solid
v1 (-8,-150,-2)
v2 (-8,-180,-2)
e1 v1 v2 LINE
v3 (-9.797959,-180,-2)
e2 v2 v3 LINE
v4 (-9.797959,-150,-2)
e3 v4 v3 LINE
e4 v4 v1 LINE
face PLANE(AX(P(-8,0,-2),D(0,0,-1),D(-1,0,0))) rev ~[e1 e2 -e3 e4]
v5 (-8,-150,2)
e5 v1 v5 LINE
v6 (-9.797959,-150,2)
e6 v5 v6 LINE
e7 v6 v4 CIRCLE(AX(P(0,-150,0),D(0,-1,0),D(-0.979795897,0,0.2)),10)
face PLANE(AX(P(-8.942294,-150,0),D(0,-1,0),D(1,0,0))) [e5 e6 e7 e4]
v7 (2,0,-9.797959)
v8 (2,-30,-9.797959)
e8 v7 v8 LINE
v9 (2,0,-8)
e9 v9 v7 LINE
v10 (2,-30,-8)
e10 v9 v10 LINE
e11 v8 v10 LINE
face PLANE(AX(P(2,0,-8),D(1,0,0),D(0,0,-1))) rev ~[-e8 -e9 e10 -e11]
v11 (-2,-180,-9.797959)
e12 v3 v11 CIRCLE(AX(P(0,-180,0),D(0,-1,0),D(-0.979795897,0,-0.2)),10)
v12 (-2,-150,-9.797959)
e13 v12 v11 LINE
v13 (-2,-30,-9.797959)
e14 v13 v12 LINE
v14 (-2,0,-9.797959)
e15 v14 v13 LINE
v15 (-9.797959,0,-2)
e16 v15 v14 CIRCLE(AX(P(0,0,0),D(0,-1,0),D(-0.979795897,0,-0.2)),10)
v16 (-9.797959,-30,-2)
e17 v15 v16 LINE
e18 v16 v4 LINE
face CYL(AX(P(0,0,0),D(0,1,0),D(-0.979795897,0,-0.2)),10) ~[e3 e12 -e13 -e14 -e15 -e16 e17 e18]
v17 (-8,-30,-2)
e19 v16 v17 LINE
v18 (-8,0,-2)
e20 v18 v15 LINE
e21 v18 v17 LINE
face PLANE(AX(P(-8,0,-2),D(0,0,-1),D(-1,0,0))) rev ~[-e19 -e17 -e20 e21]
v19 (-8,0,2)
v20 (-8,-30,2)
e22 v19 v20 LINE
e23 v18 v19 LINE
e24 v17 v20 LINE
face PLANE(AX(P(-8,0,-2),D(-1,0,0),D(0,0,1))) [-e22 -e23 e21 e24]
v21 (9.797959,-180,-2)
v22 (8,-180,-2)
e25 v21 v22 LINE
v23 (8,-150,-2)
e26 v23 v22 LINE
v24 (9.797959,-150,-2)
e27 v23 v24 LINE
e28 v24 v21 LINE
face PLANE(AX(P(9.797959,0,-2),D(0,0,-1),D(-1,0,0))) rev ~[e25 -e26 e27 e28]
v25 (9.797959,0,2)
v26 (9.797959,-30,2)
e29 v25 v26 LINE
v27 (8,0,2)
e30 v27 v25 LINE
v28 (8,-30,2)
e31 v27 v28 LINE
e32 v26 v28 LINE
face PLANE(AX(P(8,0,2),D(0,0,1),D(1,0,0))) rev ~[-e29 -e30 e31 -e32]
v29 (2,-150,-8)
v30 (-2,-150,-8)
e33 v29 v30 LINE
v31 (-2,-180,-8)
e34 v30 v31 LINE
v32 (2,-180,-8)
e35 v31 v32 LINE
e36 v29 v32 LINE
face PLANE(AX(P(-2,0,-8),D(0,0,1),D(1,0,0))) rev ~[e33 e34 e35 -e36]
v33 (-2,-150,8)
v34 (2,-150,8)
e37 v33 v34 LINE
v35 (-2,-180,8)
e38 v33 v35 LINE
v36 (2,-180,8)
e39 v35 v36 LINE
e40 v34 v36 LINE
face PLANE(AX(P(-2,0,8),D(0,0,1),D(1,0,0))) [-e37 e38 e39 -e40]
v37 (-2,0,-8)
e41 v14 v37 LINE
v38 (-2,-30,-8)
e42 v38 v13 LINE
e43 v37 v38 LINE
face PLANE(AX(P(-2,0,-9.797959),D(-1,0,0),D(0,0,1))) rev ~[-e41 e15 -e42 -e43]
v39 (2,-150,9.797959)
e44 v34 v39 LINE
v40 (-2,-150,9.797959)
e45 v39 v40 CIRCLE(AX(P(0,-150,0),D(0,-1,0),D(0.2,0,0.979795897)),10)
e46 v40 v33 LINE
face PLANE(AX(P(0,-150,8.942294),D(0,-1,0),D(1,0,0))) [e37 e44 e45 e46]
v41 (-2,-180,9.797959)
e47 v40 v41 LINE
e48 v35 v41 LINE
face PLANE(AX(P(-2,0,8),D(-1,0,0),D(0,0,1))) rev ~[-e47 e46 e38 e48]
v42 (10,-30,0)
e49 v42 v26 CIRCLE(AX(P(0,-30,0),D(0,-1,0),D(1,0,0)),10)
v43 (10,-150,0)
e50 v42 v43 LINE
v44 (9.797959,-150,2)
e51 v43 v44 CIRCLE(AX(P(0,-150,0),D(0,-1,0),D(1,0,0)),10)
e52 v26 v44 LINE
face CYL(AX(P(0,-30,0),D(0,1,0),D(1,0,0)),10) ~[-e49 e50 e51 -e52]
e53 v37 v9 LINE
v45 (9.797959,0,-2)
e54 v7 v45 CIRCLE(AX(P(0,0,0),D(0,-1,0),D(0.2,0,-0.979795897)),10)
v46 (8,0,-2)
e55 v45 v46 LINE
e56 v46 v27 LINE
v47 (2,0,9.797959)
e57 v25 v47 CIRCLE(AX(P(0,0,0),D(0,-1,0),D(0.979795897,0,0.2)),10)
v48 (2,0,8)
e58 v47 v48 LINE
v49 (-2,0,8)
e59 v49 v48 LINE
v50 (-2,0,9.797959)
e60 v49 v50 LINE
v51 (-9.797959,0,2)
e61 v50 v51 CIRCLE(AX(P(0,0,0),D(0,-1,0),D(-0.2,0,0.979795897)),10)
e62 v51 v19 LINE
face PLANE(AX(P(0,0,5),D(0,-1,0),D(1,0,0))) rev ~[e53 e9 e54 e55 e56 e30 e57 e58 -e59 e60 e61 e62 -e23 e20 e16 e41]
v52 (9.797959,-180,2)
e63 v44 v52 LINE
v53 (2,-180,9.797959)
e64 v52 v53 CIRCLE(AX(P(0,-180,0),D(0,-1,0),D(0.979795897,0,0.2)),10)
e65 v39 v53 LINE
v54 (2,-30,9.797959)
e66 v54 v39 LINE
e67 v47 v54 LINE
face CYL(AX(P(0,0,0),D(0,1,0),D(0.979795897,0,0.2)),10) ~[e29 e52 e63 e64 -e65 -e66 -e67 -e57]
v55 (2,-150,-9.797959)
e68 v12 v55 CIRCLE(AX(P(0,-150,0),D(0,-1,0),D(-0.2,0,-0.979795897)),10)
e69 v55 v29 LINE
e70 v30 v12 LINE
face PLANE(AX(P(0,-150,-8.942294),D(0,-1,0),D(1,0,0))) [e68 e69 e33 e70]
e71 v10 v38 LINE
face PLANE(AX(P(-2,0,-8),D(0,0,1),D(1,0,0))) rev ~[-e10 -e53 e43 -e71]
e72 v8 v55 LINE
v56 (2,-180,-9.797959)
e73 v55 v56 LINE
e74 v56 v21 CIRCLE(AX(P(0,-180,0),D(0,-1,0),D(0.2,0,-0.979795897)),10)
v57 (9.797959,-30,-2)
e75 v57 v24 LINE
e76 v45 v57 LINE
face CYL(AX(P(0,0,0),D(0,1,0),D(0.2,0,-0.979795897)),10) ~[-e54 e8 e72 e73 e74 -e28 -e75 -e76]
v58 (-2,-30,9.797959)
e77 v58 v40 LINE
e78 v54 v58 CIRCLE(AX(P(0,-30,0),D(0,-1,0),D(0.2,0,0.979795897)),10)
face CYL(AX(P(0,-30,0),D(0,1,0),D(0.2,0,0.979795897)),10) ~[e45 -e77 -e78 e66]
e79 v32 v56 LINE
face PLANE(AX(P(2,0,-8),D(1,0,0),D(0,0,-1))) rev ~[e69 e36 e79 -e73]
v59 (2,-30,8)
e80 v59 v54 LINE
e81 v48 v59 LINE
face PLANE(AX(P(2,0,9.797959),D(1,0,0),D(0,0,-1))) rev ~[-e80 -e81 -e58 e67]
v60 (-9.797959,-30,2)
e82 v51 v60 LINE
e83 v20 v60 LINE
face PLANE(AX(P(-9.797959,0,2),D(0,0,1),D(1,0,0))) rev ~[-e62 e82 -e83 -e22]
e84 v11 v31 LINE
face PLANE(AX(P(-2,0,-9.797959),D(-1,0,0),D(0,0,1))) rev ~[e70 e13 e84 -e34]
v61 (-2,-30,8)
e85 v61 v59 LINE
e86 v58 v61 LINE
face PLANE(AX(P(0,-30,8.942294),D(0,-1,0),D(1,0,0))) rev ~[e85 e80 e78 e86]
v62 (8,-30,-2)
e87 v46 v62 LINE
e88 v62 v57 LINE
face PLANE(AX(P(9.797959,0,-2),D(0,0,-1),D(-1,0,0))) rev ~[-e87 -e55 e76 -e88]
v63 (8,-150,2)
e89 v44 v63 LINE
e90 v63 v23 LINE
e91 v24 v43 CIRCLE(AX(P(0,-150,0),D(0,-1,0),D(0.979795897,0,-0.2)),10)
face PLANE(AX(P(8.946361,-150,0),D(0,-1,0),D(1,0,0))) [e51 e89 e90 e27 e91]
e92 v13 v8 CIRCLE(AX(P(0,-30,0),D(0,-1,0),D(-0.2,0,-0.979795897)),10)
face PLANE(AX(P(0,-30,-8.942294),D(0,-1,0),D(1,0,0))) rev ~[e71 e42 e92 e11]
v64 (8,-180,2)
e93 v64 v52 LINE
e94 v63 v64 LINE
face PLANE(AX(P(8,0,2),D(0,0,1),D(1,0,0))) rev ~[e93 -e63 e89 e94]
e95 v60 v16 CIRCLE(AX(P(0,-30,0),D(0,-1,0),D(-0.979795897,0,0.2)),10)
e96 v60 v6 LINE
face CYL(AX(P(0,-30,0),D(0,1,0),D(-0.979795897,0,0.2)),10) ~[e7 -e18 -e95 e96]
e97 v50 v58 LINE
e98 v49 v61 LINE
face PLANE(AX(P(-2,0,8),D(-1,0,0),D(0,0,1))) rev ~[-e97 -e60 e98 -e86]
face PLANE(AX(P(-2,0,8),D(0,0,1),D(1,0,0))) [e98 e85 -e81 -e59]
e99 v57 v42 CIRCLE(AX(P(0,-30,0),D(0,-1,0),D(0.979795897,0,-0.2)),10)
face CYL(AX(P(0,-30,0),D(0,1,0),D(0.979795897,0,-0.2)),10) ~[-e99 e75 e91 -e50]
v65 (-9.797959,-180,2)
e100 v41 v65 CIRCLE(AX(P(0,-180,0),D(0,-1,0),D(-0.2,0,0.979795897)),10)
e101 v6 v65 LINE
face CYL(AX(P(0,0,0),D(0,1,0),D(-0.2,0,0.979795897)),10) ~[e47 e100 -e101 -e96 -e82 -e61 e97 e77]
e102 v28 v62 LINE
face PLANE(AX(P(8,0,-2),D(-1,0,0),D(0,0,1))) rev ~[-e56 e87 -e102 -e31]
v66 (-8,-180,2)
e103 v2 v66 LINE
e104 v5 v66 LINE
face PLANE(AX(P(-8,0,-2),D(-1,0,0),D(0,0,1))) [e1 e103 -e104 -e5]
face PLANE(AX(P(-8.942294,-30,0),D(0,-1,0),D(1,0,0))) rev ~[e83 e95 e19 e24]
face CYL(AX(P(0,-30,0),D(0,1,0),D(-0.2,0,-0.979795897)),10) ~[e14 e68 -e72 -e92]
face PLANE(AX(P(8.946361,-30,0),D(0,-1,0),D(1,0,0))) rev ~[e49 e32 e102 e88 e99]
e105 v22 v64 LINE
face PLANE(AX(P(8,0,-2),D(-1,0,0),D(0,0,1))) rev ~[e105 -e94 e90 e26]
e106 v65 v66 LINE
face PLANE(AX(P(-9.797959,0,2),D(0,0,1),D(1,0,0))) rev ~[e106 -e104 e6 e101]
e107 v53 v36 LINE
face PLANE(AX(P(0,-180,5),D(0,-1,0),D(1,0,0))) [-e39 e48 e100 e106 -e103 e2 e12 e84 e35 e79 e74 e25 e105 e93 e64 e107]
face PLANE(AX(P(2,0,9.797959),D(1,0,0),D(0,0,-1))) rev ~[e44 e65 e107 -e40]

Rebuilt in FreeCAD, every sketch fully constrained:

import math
import FreeCAD as App
import Part
import Sketcher

doc = App.newDocument("Part")
body = doc.addObject("PartDesign::Body", "Body")

# Sketch on XZ plane
sketch1 = body.newObject("Sketcher::SketchObject", "Sketch")
sketch1.AttachmentSupport = (doc.getObject("XZ_Plane"), [""])
sketch1.MapMode = "FlatFace"
sketch1.addGeometry(Part.LineSegment(App.Vector(-8, 2, 0), App.Vector(-8, -2, 0)), False)
sketch1.addGeometry(Part.LineSegment(App.Vector(-8, -2, 0), App.Vector(-9.797959, -2, 0)), False)
sketch1.addGeometry(Part.ArcOfCircle(Part.Circle(App.Vector(0, 0, 0), App.Vector(0, 0, 1), 10), math.radians(-168.463041), math.radians(-101.536959)), False)
sketch1.addGeometry(Part.LineSegment(App.Vector(-2, -9.797959, 0), App.Vector(-2, -8, 0)), False)
sketch1.addGeometry(Part.LineSegment(App.Vector(-2, -8, 0), App.Vector(2, -8, 0)), False)
sketch1.addGeometry(Part.LineSegment(App.Vector(2, -8, 0), App.Vector(2, -9.797959, 0)), False)
sketch1.addGeometry(Part.ArcOfCircle(Part.Circle(App.Vector(0, 0, 0), App.Vector(0, 0, 1), 10), math.radians(-78.463041), math.radians(-11.536959)), False)
sketch1.addGeometry(Part.LineSegment(App.Vector(9.797959, -2, 0), App.Vector(8, -2, 0)), False)
sketch1.addGeometry(Part.LineSegment(App.Vector(8, -2, 0), App.Vector(8, 2, 0)), False)
sketch1.addGeometry(Part.LineSegment(App.Vector(8, 2, 0), App.Vector(9.797959, 2, 0)), False)
sketch1.addGeometry(Part.ArcOfCircle(Part.Circle(App.Vector(0, 0, 0), App.Vector(0, 0, 1), 10), math.radians(11.536959), math.radians(78.463041)), False)
sketch1.addGeometry(Part.LineSegment(App.Vector(2, 9.797959, 0), App.Vector(2, 8, 0)), False)
sketch1.addGeometry(Part.LineSegment(App.Vector(2, 8, 0), App.Vector(-2, 8, 0)), False)
sketch1.addGeometry(Part.LineSegment(App.Vector(-2, 8, 0), App.Vector(-2, 9.797959, 0)), False)
sketch1.addGeometry(Part.ArcOfCircle(Part.Circle(App.Vector(0, 0, 0), App.Vector(0, 0, 1), 10), math.radians(101.536959), math.radians(168.463041)), False)
sketch1.addGeometry(Part.LineSegment(App.Vector(-9.797959, 2, 0), App.Vector(-8, 2, 0)), False)
sketch1.addConstraint(Sketcher.Constraint("Coincident", 0, 2, 1, 1))
sketch1.addConstraint(Sketcher.Constraint("Coincident", 1, 2, 2, 1))
sketch1.addConstraint(Sketcher.Constraint("Coincident", 2, 2, 3, 1))
sketch1.addConstraint(Sketcher.Constraint("Coincident", 3, 2, 4, 1))
sketch1.addConstraint(Sketcher.Constraint("Coincident", 4, 2, 5, 1))
sketch1.addConstraint(Sketcher.Constraint("Coincident", 5, 2, 6, 1))
sketch1.addConstraint(Sketcher.Constraint("Coincident", 6, 2, 7, 1))
sketch1.addConstraint(Sketcher.Constraint("Coincident", 7, 2, 8, 1))
sketch1.addConstraint(Sketcher.Constraint("Coincident", 8, 2, 9, 1))
sketch1.addConstraint(Sketcher.Constraint("Coincident", 9, 2, 10, 1))
sketch1.addConstraint(Sketcher.Constraint("Coincident", 10, 2, 11, 1))
sketch1.addConstraint(Sketcher.Constraint("Coincident", 11, 2, 12, 1))
sketch1.addConstraint(Sketcher.Constraint("Coincident", 12, 2, 13, 1))
sketch1.addConstraint(Sketcher.Constraint("Coincident", 13, 2, 14, 1))
sketch1.addConstraint(Sketcher.Constraint("Coincident", 14, 2, 15, 1))
sketch1.addConstraint(Sketcher.Constraint("Coincident", 15, 2, 0, 1))
sketch1.addConstraint(Sketcher.Constraint("Vertical", 0))
sketch1.addConstraint(Sketcher.Constraint("Horizontal", 1))
sketch1.addConstraint(Sketcher.Constraint("Vertical", 3))
sketch1.addConstraint(Sketcher.Constraint("Horizontal", 4))
sketch1.addConstraint(Sketcher.Constraint("Vertical", 5))
sketch1.addConstraint(Sketcher.Constraint("Horizontal", 7))
sketch1.addConstraint(Sketcher.Constraint("Vertical", 8))
sketch1.addConstraint(Sketcher.Constraint("Horizontal", 9))
sketch1.addConstraint(Sketcher.Constraint("Vertical", 11))
sketch1.addConstraint(Sketcher.Constraint("Horizontal", 12))
sketch1.addConstraint(Sketcher.Constraint("Vertical", 13))
sketch1.addConstraint(Sketcher.Constraint("Horizontal", 15))
sketch1.addConstraint(Sketcher.Constraint("Coincident", 2, 3, -1, 1))
sketch1.addConstraint(Sketcher.Constraint("Coincident", 6, 3, -1, 1))
sketch1.addConstraint(Sketcher.Constraint("Coincident", 10, 3, -1, 1))
sketch1.addConstraint(Sketcher.Constraint("Coincident", 14, 3, -1, 1))
sketch1.addConstraint(Sketcher.Constraint("Equal", 2, 6))
sketch1.addConstraint(Sketcher.Constraint("Equal", 6, 10))
sketch1.addConstraint(Sketcher.Constraint("Equal", 10, 14))
sketch1.addConstraint(Sketcher.Constraint("Symmetric", 0, 2, 8, 2, -1, 1))
sketch1.addConstraint(Sketcher.Constraint("Symmetric", 3, 2, 11, 2, -1, 1))
sketch1.addConstraint(Sketcher.Constraint("Horizontal", 2, 2, 5, 2))
sketch1.addConstraint(Sketcher.Constraint("Horizontal", 1, 2, 6, 2))
sketch1.addConstraint(Sketcher.Constraint("Horizontal", 10, 2, 13, 2))
sketch1.addConstraint(Sketcher.Constraint("Horizontal", 9, 2, 14, 2))
sketch1.addConstraint(Sketcher.Constraint("Equal", 12, 0))
sketch1.addConstraint(Sketcher.Constraint("Equal", 15, 3))
sketch1.addConstraint(Sketcher.Constraint("Radius", 2, 10.0))
sketch1.addConstraint(Sketcher.Constraint("DistanceX", 4, 1, 4, 2, 4.0))
sketch1.addConstraint(Sketcher.Constraint("DistanceX", 0, 2, -1, 1, 8.0))
pad1 = body.newObject("PartDesign::Pad", "Pad")
pad1.Profile = sketch1
pad1.Length = 180

# Sketch on XZ plane
sketch2 = body.newObject("Sketcher::SketchObject", "Sketch001")
sketch2.AttachmentSupport = (doc.getObject("XZ_Plane"), [""])
sketch2.MapMode = "FlatFace"
sketch2.AttachmentOffset = App.Placement(App.Vector(0, 0, 30), App.Rotation())
sketch2.addGeometry(Part.LineSegment(App.Vector(2, 8, 0), App.Vector(2, 9.797959, 0)), False)
sketch2.addGeometry(Part.ArcOfCircle(Part.Circle(App.Vector(0, 0, 0), App.Vector(0, 0, 1), 10), math.radians(78.463041), math.radians(101.536959)), False)
sketch2.addGeometry(Part.LineSegment(App.Vector(-2, 9.797959, 0), App.Vector(-2, 8, 0)), False)
sketch2.addGeometry(Part.LineSegment(App.Vector(-2, 8, 0), App.Vector(2, 8, 0)), False)
sketch2.addGeometry(Part.LineSegment(App.Vector(-8, 2, 0), App.Vector(-9.797959, 2, 0)), False)
sketch2.addGeometry(Part.ArcOfCircle(Part.Circle(App.Vector(0, 0, 0), App.Vector(0, 0, 1), 10), math.radians(168.463041), math.radians(191.536959)), False)
sketch2.addGeometry(Part.LineSegment(App.Vector(-9.797959, -2, 0), App.Vector(-8, -2, 0)), False)
sketch2.addGeometry(Part.LineSegment(App.Vector(-8, -2, 0), App.Vector(-8, 2, 0)), False)
sketch2.addGeometry(Part.ArcOfCircle(Part.Circle(App.Vector(0, 0, 0), App.Vector(0, 0, 1), 10), math.radians(-101.536959), math.radians(-78.463041)), False)
sketch2.addGeometry(Part.LineSegment(App.Vector(2, -9.797959, 0), App.Vector(2, -8, 0)), False)
sketch2.addGeometry(Part.LineSegment(App.Vector(2, -8, 0), App.Vector(-2, -8, 0)), False)
sketch2.addGeometry(Part.LineSegment(App.Vector(-2, -8, 0), App.Vector(-2, -9.797959, 0)), False)
sketch2.addGeometry(Part.ArcOfCircle(Part.Circle(App.Vector(0, 0, 0), App.Vector(0, 0, 1), 10), math.radians(-11.536959), math.radians(0)), False)
sketch2.addGeometry(Part.ArcOfCircle(Part.Circle(App.Vector(0, 0, 0), App.Vector(0, 0, 1), 10), math.radians(0), math.radians(11.536959)), False)
sketch2.addGeometry(Part.LineSegment(App.Vector(9.797959, 2, 0), App.Vector(8, 2, 0)), False)
sketch2.addGeometry(Part.LineSegment(App.Vector(8, 2, 0), App.Vector(8, -2, 0)), False)
sketch2.addGeometry(Part.LineSegment(App.Vector(8, -2, 0), App.Vector(9.797959, -2, 0)), False)
sketch2.addConstraint(Sketcher.Constraint("Coincident", 0, 2, 1, 1))
sketch2.addConstraint(Sketcher.Constraint("Coincident", 1, 2, 2, 1))
sketch2.addConstraint(Sketcher.Constraint("Coincident", 2, 2, 3, 1))
sketch2.addConstraint(Sketcher.Constraint("Coincident", 3, 2, 0, 1))
sketch2.addConstraint(Sketcher.Constraint("Coincident", 4, 2, 5, 1))
sketch2.addConstraint(Sketcher.Constraint("Coincident", 5, 2, 6, 1))
sketch2.addConstraint(Sketcher.Constraint("Coincident", 6, 2, 7, 1))
sketch2.addConstraint(Sketcher.Constraint("Coincident", 7, 2, 4, 1))
sketch2.addConstraint(Sketcher.Constraint("Coincident", 8, 2, 9, 1))
sketch2.addConstraint(Sketcher.Constraint("Coincident", 9, 2, 10, 1))
sketch2.addConstraint(Sketcher.Constraint("Coincident", 10, 2, 11, 1))
sketch2.addConstraint(Sketcher.Constraint("Coincident", 11, 2, 8, 1))
sketch2.addConstraint(Sketcher.Constraint("Tangent", 12, 2, 13, 1))
sketch2.addConstraint(Sketcher.Constraint("Coincident", 13, 2, 14, 1))
sketch2.addConstraint(Sketcher.Constraint("Coincident", 14, 2, 15, 1))
sketch2.addConstraint(Sketcher.Constraint("Coincident", 15, 2, 16, 1))
sketch2.addConstraint(Sketcher.Constraint("Coincident", 16, 2, 12, 1))
sketch2.addConstraint(Sketcher.Constraint("Vertical", 0))
sketch2.addConstraint(Sketcher.Constraint("Vertical", 2))
sketch2.addConstraint(Sketcher.Constraint("Horizontal", 3))
sketch2.addConstraint(Sketcher.Constraint("Horizontal", 4))
sketch2.addConstraint(Sketcher.Constraint("Horizontal", 6))
sketch2.addConstraint(Sketcher.Constraint("Vertical", 7))
sketch2.addConstraint(Sketcher.Constraint("Vertical", 9))
sketch2.addConstraint(Sketcher.Constraint("Horizontal", 10))
sketch2.addConstraint(Sketcher.Constraint("Vertical", 11))
sketch2.addConstraint(Sketcher.Constraint("Horizontal", 14))
sketch2.addConstraint(Sketcher.Constraint("Vertical", 15))
sketch2.addConstraint(Sketcher.Constraint("Horizontal", 16))
sketch2.addConstraint(Sketcher.Constraint("Coincident", 1, 3, -1, 1))
sketch2.addConstraint(Sketcher.Constraint("Coincident", 5, 3, -1, 1))
sketch2.addConstraint(Sketcher.Constraint("Coincident", 8, 3, -1, 1))
sketch2.addConstraint(Sketcher.Constraint("Coincident", 12, 3, -1, 1))
sketch2.addConstraint(Sketcher.Constraint("Equal", 1, 5))
sketch2.addConstraint(Sketcher.Constraint("Equal", 5, 8))
sketch2.addConstraint(Sketcher.Constraint("Equal", 8, 12))
sketch2.addConstraint(Sketcher.Constraint("Equal", 12, 13))
sketch2.addConstraint(Sketcher.Constraint("Symmetric", 2, 2, 9, 2, -1, 1))
sketch2.addConstraint(Sketcher.Constraint("Symmetric", 6, 2, 14, 2, -1, 1))
sketch2.addConstraint(Sketcher.Constraint("PointOnObject", 12, 2, -1))
sketch2.addConstraint(Sketcher.Constraint("Horizontal", 0, 2, 1, 2))
sketch2.addConstraint(Sketcher.Constraint("Horizontal", 8, 2, 11, 2))
sketch2.addConstraint(Sketcher.Constraint("Horizontal", 7, 2, 13, 2))
sketch2.addConstraint(Sketcher.Constraint("Horizontal", 6, 2, 15, 2))
sketch2.addConstraint(Sketcher.Constraint("Equal", 16, 0))
sketch2.addConstraint(Sketcher.Constraint("Equal", 10, 7))
sketch2.addConstraint(Sketcher.Constraint("Radius", 1, 10.0))
sketch2.addConstraint(Sketcher.Constraint("DistanceX", 3, 1, 3, 2, 4.0))
sketch2.addConstraint(Sketcher.Constraint("DistanceY", -1, 1, 2, 2, 8.0))
pad2 = body.newObject("PartDesign::Pad", "Pad001")
pad2.Profile = sketch2
pad2.Length = 120

doc.recompute()
